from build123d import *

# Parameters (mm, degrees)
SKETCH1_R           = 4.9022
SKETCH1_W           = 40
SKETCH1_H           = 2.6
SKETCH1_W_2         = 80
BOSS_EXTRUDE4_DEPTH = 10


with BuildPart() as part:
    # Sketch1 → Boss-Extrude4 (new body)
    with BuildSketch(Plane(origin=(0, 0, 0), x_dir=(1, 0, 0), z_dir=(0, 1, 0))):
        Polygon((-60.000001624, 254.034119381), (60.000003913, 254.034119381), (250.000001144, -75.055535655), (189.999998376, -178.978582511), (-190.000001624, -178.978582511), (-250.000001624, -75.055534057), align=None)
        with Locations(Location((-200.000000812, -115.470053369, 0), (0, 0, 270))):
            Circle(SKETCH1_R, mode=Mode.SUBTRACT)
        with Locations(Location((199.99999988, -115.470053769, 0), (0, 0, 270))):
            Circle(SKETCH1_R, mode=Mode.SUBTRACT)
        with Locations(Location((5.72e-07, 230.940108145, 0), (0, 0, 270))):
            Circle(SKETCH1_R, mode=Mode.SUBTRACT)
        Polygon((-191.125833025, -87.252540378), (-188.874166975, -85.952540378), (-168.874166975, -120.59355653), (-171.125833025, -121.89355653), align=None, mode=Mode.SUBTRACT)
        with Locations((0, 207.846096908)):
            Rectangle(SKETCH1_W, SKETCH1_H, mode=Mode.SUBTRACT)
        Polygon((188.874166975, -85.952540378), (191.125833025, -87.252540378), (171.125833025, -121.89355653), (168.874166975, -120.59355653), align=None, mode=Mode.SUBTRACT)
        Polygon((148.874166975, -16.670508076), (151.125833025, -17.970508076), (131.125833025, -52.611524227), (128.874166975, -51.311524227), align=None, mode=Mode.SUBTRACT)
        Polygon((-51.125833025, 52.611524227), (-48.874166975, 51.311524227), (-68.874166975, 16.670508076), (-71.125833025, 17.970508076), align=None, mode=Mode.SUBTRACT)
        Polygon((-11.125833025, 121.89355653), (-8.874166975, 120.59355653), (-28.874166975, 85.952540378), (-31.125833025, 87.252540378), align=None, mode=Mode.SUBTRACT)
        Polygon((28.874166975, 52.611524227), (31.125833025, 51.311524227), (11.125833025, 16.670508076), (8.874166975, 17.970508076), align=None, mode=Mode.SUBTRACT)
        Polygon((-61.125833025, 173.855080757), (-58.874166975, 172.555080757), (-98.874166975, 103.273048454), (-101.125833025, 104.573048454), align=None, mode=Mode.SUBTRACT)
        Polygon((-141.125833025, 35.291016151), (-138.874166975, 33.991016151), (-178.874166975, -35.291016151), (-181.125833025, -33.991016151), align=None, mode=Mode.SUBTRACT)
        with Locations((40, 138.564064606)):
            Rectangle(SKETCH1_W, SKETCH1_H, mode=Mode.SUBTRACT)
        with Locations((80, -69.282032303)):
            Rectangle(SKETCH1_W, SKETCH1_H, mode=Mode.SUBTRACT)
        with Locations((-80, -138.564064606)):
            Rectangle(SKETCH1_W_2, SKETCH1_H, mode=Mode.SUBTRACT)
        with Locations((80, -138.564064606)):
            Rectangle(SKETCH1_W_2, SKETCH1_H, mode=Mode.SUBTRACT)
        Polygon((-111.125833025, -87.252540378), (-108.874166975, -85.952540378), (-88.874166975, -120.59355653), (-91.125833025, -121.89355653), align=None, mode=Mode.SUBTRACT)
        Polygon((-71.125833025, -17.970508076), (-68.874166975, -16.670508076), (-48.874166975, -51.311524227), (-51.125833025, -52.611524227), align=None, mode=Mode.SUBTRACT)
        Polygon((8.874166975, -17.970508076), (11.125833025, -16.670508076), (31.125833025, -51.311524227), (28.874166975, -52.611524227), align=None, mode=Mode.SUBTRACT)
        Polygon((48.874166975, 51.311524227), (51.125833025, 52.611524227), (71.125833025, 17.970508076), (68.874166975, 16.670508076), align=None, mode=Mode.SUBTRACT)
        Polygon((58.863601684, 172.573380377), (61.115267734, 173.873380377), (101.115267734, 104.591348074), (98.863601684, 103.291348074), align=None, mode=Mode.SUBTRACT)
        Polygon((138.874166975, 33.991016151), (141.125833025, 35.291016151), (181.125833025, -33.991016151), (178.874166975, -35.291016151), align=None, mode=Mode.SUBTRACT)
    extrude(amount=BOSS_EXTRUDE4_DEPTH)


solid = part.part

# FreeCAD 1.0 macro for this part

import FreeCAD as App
import Part
import Sketcher
from FreeCAD import Vector
Q = App.Units.Quantity


def add_polygon(sketch, points):
    """Adds a closed chain of lines whose ends are joined by coincident constraints."""
    first, n = sketch.GeometryCount, len(points)
    for a, b in zip(points, points[1:] + points[:1]):
        sketch.addGeometry(Part.LineSegment(App.Vector(*a, 0), App.Vector(*b, 0)), False)
    for i in range(n):
        sketch.addConstraint(Sketcher.Constraint("Coincident", first + i, 2, first + (i + 1) % n, 1))

doc = App.newDocument("Part")
body = doc.addObject("PartDesign::Body", "Body")

# Sketch on XZ plane
sketch1 = body.newObject("Sketcher::SketchObject", "Sketch")
sketch1.AttachmentSupport = (doc.getObject("XZ_Plane"), [""])
sketch1.MapMode = "FlatFace"
add_polygon(sketch1, [(60, -254), (-60, -254), (-250, 75.1), (-190, 179), (190, 179), (250, 75.1)])  # lines 0-5
sketch1.addGeometry(Part.Circle(Vector(200, 115.5, 0), Vector(0, 0, 1), 4.9), False)  # 6
add_polygon(sketch1, [(188.9, 86), (191.1, 87.3), (171.1, 121.9), (168.9, 120.6)])  # lines 7-10
add_polygon(sketch1, [(40, 139.9), (40, 137.3), (120, 137.3), (120, 139.9)])  # lines 11-14
add_polygon(sketch1, [(60, 70.6), (60, 68), (100, 68), (100, 70.6)])  # lines 15-18
add_polygon(sketch1, [(138.9, -34), (141.1, -35.3), (181.1, 34), (178.9, 35.3)])  # lines 19-22
add_polygon(sketch1, [(148.9, 16.7), (151.1, 18), (131.1, 52.6), (128.9, 51.3)])  # lines 23-26
add_polygon(sketch1, [(8.9, 18), (11.1, 16.7), (31.1, 51.3), (28.9, 52.6)])  # lines 27-30
add_polygon(sketch1, [(48.9, -51.3), (51.1, -52.6), (71.1, -18), (68.9, -16.7)])  # lines 31-34
add_polygon(sketch1, [(28.9, -52.6), (31.1, -51.3), (11.1, -16.7), (8.9, -18)])  # lines 35-38
add_polygon(sketch1, [(-120, 139.9), (-120, 137.3), (-40, 137.3), (-40, 139.9)])  # lines 39-42
add_polygon(sketch1, [(-111.1, 87.3), (-108.9, 86), (-88.9, 120.6), (-91.1, 121.9)])  # lines 43-46
sketch1.addGeometry(Part.Circle(Vector(-200, 115.5, 0), Vector(0, 0, 1), 4.9), False)  # 47
add_polygon(sketch1, [(-191.1, 87.3), (-188.9, 86), (-168.9, 120.6), (-171.1, 121.9)])  # lines 48-51
add_polygon(sketch1, [(-71.1, 18), (-68.9, 16.7), (-48.9, 51.3), (-51.1, 52.6)])  # lines 52-55
add_polygon(sketch1, [(-51.1, -52.6), (-48.9, -51.3), (-68.9, -16.7), (-71.1, -18)])  # lines 56-59
add_polygon(sketch1, [(-141.1, -35.3), (-138.9, -34), (-178.9, 35.3), (-181.1, 34)])  # lines 60-63
add_polygon(sketch1, [(58.9, -172.6), (61.1, -173.9), (101.1, -104.6), (98.9, -103.3)])  # lines 64-67
add_polygon(sketch1, [(20, -137.3), (20, -139.9), (60, -139.9), (60, -137.3)])  # lines 68-71
add_polygon(sketch1, [(-20, -206.5), (-20, -209.1), (20, -209.1), (20, -206.5)])  # lines 72-75
sketch1.addGeometry(Part.Circle(Vector(0, -230.9, 0), Vector(0, 0, 1), 4.9), False)  # 76
add_polygon(sketch1, [(-11.1, -121.9), (-8.9, -120.6), (-28.9, -86), (-31.1, -87.3)])  # lines 77-80
add_polygon(sketch1, [(-61.1, -173.9), (-58.9, -172.6), (-98.9, -103.3), (-101.1, -104.6)])  # lines 81-84
sketch1.addConstraint([
    Sketcher.Constraint("Horizontal", 0),
    Sketcher.Constraint("Horizontal", 3),
    Sketcher.Constraint("Vertical", 11),
    Sketcher.Constraint("Horizontal", 12),
    Sketcher.Constraint("Vertical", 13),
    Sketcher.Constraint("Horizontal", 14),
    Sketcher.Constraint("Vertical", 15),
    Sketcher.Constraint("Horizontal", 16),
    Sketcher.Constraint("Vertical", 17),
    Sketcher.Constraint("Horizontal", 18),
    Sketcher.Constraint("Vertical", 39),
    Sketcher.Constraint("Horizontal", 40),
    Sketcher.Constraint("Vertical", 41),
    Sketcher.Constraint("Horizontal", 42),
    Sketcher.Constraint("Vertical", 68),
    Sketcher.Constraint("Horizontal", 69),
    Sketcher.Constraint("Vertical", 70),
    Sketcher.Constraint("Horizontal", 71),
    Sketcher.Constraint("Vertical", 72),
    Sketcher.Constraint("Horizontal", 73),
    Sketcher.Constraint("Vertical", 74),
    Sketcher.Constraint("Horizontal", 75),
    Sketcher.Constraint("Equal", 6, 47),
    Sketcher.Constraint("Equal", 47, 76),
    Sketcher.Constraint("Symmetric", 33, 2, 52, 2, -1, 1),
    Sketcher.Constraint("Symmetric", 34, 2, 53, 2, -1, 1),
    Sketcher.Constraint("Symmetric", 31, 2, 54, 2, -1, 1),
    Sketcher.Constraint("Symmetric", 32, 2, 55, 2, -1, 1),
    Sketcher.Constraint("Symmetric", 6, 3, 47, 3, -2),
    Sketcher.Constraint("Symmetric", 1, 2, 4, 2, -2),
    Sketcher.Constraint("Symmetric", 12, 2, 39, 2, -2),
    Sketcher.Constraint("Symmetric", 14, 2, 41, 2, -2),
    Sketcher.Constraint("Symmetric", 10, 2, 48, 2, -2),
    Sketcher.Constraint("Symmetric", 9, 2, 49, 2, -2),
    Sketcher.Constraint("Symmetric", 8, 2, 50, 2, -2),
    Sketcher.Constraint("Symmetric", 7, 2, 51, 2, -2),
    Sketcher.Constraint("Symmetric", 34, 2, 56, 2, -2),
    Sketcher.Constraint("Symmetric", 33, 2, 57, 2, -2),
    Sketcher.Constraint("Symmetric", 32, 2, 58, 2, -2),
    Sketcher.Constraint("Symmetric", 31, 2, 59, 2, -2),
    Sketcher.Constraint("Symmetric", 22, 2, 60, 2, -2),
    Sketcher.Constraint("Symmetric", 21, 2, 61, 2, -2),
    Sketcher.Constraint("Symmetric", 20, 2, 62, 2, -2),
    Sketcher.Constraint("Symmetric", 19, 2, 63, 2, -2),
    Sketcher.Constraint("Symmetric", 28, 2, 35, 2, -1),
    Sketcher.Constraint("Symmetric", 27, 2, 36, 2, -1),
    Sketcher.Constraint("Symmetric", 30, 2, 37, 2, -1),
    Sketcher.Constraint("Symmetric", 29, 2, 38, 2, -1),
    Sketcher.Constraint("PointOnObject", 76, 3, -2),
    Sketcher.Constraint("Parallel", 1, 4),
    Sketcher.Constraint("Parallel", 2, 5),
    Sketcher.Constraint("Perpendicular", 4, 7),
    Sketcher.Constraint("Perpendicular", 7, 8),
    Sketcher.Constraint("Perpendicular", 8, 9),
    Sketcher.Constraint("Perpendicular", 9, 10),
    Sketcher.Constraint("Perpendicular", 5, 19),
    Sketcher.Constraint("Perpendicular", 19, 20),
    Sketcher.Constraint("Perpendicular", 20, 21),
    Sketcher.Constraint("Perpendicular", 21, 22),
    Sketcher.Constraint("Perpendicular", 10, 23),
    Sketcher.Constraint("Perpendicular", 23, 24),
    Sketcher.Constraint("Perpendicular", 24, 25),
    Sketcher.Constraint("Perpendicular", 25, 26),
    Sketcher.Constraint("Perpendicular", 22, 27),
    Sketcher.Constraint("Perpendicular", 27, 28),
    Sketcher.Constraint("Perpendicular", 28, 29),
    Sketcher.Constraint("Perpendicular", 29, 30),
    Sketcher.Constraint("Perpendicular", 30, 31),
    Sketcher.Constraint("Perpendicular", 31, 32),
    Sketcher.Constraint("Perpendicular", 32, 33),
    Sketcher.Constraint("Perpendicular", 33, 34),
    Sketcher.Constraint("Perpendicular", 26, 35),
    Sketcher.Constraint("Perpendicular", 34, 43),
    Sketcher.Constraint("Perpendicular", 43, 44),
    Sketcher.Constraint("Perpendicular", 44, 45),
    Sketcher.Constraint("Perpendicular", 45, 46),
    Sketcher.Constraint("Perpendicular", 55, 64),
    Sketcher.Constraint("Perpendicular", 64, 65),
    Sketcher.Constraint("Perpendicular", 65, 66),
    Sketcher.Constraint("Perpendicular", 66, 67),
    Sketcher.Constraint("Perpendicular", 63, 77),
    Sketcher.Constraint("Perpendicular", 77, 78),
    Sketcher.Constraint("Perpendicular", 78, 79),
    Sketcher.Constraint("Perpendicular", 79, 80),
    Sketcher.Constraint("Perpendicular", 80, 81),
    Sketcher.Constraint("Perpendicular", 81, 82),
    Sketcher.Constraint("Perpendicular", 82, 83),
    Sketcher.Constraint("Perpendicular", 83, 84),
    Sketcher.Constraint("Horizontal", 26, 2, 27, 2),
    Sketcher.Constraint("Horizontal", 25, 2, 28, 2),
    Sketcher.Constraint("Horizontal", 24, 2, 29, 2),
    Sketcher.Constraint("Horizontal", 34, 2, 35, 2),
    Sketcher.Constraint("Horizontal", 33, 2, 36, 2),
    Sketcher.Constraint("Horizontal", 32, 2, 37, 2),
    Sketcher.Constraint("Horizontal", 10, 2, 43, 2),
    Sketcher.Constraint("Horizontal", 9, 2, 44, 2),
    Sketcher.Constraint("Horizontal", 8, 2, 45, 2),
    Sketcher.Constraint("Vertical", 18, 2, 69, 2),
    Sketcher.Constraint("Vertical", 71, 2, 73, 2),
    Sketcher.Constraint("Equal", 18, 69),
    Sketcher.Constraint("Equal", 71, 73),
    Sketcher.Constraint("Equal", 13, 15),
    Sketcher.Constraint("Equal", 41, 68),
    Sketcher.Constraint("Equal", 70, 72),
    Sketcher.Constraint("Equal", 9, 19),
    Sketcher.Constraint("Equal", 21, 23),
    Sketcher.Constraint("Equal", 10, 24),
    Sketcher.Constraint("Equal", 62, 64),
    Sketcher.Constraint("Equal", 63, 65),
    Sketcher.Constraint("Equal", 66, 77),
    Sketcher.Constraint("Equal", 59, 78),
    Sketcher.Constraint("Equal", 79, 81),
    Sketcher.Constraint("Equal", 67, 82),
    Sketcher.Constraint("DistanceX", 3, 1, 3, 2, Q("380 mm")),
    Sketcher.Constraint("DistanceX", 12, 1, 12, 2, Q("80 mm")),
    Sketcher.Constraint("DistanceX", 16, 1, 16, 2, Q("40 mm")),
    Sketcher.Constraint("Angle", 1, Q("120 deg")),
    Sketcher.Constraint("Distance", 1, Q("380 mm")),
    Sketcher.Constraint("Distance", 2, Q("120 mm")),
    Sketcher.Constraint("Distance", 8, Q("40 mm")),
    Sketcher.Constraint("Distance", 20, Q("80 mm")),
    Sketcher.Constraint("DistanceY", 11, 2, 11, 1, Q("2.6 mm")),
    Sketcher.Constraint("DistanceX", -1, 1, 6, 3, Q("200 mm")),
    Sketcher.Constraint("DistanceX", -1, 1, 11, 2, Q("40 mm")),
    Sketcher.Constraint("DistanceX", -1, 1, 15, 2, Q("60 mm")),
    Sketcher.Constraint("Distance", 7, Q("2.6 mm")),
    Sketcher.Constraint("Diameter", 6, Q("9.8044 mm")),
    Sketcher.Constraint("DistanceX", -1, 1, 66, 2, Q("98.863602 mm")),
    Sketcher.Constraint("DistanceY", 76, 3, -1, 1, Q("230.940108 mm")),
    Sketcher.Constraint("DistanceY", 0, 2, -1, 1, Q("254.034119 mm")),
    Sketcher.Constraint("DistanceY", -1, 1, 7, 2, Q("87.25254 mm")),
    Sketcher.Constraint("DistanceY", -1, 1, 23, 2, Q("17.970508 mm")),
    Sketcher.Constraint("DistanceY", 64, 2, -1, 1, Q("173.87338 mm")),
    Sketcher.Constraint("DistanceY", 78, 2, -1, 1, Q("85.95254 mm")),
    Sketcher.Constraint("DistanceY", 81, 2, -1, 1, Q("172.555081 mm")),
    Sketcher.Constraint("DistanceY", -1, 1, 6, 3, Q("115.470054 mm")),
    Sketcher.Constraint("DistanceX", -1, 1, 7, 2, Q("191.125833 mm")),
    Sketcher.Constraint("DistanceY", -1, 1, 11, 2, Q("137.264065 mm")),
    Sketcher.Constraint("DistanceY", -1, 1, 15, 2, Q("67.982032 mm")),
    Sketcher.Constraint("DistanceX", -1, 1, 19, 2, Q("141.125833 mm")),
    Sketcher.Constraint("DistanceY", 19, 2, -1, 1, Q("35.291016 mm")),
    Sketcher.Constraint("DistanceX", -1, 1, 23, 2, Q("151.125833 mm")),
    Sketcher.Constraint("DistanceX", -1, 1, 27, 2, Q("11.125833 mm")),
    Sketcher.Constraint("DistanceX", -1, 1, 31, 2, Q("51.125833 mm")),
    Sketcher.Constraint("DistanceX", 43, 2, -1, 1, Q("108.874167 mm")),
    Sketcher.Constraint("DistanceY", 68, 2, -1, 1, Q("139.864065 mm")),
    Sketcher.Constraint("DistanceY", 72, 2, -1, 1, Q("209.146097 mm")),
    Sketcher.Constraint("DistanceX", 77, 2, -1, 1, Q("8.874167 mm")),
    Sketcher.Constraint("DistanceX", 81, 2, -1, 1, Q("58.874167 mm")),
])
pad1 = body.newObject("PartDesign::Pad", "Pad")
pad1.Profile = sketch1
pad1.Length = 10
pad1.Reversed = True

doc.recompute()
